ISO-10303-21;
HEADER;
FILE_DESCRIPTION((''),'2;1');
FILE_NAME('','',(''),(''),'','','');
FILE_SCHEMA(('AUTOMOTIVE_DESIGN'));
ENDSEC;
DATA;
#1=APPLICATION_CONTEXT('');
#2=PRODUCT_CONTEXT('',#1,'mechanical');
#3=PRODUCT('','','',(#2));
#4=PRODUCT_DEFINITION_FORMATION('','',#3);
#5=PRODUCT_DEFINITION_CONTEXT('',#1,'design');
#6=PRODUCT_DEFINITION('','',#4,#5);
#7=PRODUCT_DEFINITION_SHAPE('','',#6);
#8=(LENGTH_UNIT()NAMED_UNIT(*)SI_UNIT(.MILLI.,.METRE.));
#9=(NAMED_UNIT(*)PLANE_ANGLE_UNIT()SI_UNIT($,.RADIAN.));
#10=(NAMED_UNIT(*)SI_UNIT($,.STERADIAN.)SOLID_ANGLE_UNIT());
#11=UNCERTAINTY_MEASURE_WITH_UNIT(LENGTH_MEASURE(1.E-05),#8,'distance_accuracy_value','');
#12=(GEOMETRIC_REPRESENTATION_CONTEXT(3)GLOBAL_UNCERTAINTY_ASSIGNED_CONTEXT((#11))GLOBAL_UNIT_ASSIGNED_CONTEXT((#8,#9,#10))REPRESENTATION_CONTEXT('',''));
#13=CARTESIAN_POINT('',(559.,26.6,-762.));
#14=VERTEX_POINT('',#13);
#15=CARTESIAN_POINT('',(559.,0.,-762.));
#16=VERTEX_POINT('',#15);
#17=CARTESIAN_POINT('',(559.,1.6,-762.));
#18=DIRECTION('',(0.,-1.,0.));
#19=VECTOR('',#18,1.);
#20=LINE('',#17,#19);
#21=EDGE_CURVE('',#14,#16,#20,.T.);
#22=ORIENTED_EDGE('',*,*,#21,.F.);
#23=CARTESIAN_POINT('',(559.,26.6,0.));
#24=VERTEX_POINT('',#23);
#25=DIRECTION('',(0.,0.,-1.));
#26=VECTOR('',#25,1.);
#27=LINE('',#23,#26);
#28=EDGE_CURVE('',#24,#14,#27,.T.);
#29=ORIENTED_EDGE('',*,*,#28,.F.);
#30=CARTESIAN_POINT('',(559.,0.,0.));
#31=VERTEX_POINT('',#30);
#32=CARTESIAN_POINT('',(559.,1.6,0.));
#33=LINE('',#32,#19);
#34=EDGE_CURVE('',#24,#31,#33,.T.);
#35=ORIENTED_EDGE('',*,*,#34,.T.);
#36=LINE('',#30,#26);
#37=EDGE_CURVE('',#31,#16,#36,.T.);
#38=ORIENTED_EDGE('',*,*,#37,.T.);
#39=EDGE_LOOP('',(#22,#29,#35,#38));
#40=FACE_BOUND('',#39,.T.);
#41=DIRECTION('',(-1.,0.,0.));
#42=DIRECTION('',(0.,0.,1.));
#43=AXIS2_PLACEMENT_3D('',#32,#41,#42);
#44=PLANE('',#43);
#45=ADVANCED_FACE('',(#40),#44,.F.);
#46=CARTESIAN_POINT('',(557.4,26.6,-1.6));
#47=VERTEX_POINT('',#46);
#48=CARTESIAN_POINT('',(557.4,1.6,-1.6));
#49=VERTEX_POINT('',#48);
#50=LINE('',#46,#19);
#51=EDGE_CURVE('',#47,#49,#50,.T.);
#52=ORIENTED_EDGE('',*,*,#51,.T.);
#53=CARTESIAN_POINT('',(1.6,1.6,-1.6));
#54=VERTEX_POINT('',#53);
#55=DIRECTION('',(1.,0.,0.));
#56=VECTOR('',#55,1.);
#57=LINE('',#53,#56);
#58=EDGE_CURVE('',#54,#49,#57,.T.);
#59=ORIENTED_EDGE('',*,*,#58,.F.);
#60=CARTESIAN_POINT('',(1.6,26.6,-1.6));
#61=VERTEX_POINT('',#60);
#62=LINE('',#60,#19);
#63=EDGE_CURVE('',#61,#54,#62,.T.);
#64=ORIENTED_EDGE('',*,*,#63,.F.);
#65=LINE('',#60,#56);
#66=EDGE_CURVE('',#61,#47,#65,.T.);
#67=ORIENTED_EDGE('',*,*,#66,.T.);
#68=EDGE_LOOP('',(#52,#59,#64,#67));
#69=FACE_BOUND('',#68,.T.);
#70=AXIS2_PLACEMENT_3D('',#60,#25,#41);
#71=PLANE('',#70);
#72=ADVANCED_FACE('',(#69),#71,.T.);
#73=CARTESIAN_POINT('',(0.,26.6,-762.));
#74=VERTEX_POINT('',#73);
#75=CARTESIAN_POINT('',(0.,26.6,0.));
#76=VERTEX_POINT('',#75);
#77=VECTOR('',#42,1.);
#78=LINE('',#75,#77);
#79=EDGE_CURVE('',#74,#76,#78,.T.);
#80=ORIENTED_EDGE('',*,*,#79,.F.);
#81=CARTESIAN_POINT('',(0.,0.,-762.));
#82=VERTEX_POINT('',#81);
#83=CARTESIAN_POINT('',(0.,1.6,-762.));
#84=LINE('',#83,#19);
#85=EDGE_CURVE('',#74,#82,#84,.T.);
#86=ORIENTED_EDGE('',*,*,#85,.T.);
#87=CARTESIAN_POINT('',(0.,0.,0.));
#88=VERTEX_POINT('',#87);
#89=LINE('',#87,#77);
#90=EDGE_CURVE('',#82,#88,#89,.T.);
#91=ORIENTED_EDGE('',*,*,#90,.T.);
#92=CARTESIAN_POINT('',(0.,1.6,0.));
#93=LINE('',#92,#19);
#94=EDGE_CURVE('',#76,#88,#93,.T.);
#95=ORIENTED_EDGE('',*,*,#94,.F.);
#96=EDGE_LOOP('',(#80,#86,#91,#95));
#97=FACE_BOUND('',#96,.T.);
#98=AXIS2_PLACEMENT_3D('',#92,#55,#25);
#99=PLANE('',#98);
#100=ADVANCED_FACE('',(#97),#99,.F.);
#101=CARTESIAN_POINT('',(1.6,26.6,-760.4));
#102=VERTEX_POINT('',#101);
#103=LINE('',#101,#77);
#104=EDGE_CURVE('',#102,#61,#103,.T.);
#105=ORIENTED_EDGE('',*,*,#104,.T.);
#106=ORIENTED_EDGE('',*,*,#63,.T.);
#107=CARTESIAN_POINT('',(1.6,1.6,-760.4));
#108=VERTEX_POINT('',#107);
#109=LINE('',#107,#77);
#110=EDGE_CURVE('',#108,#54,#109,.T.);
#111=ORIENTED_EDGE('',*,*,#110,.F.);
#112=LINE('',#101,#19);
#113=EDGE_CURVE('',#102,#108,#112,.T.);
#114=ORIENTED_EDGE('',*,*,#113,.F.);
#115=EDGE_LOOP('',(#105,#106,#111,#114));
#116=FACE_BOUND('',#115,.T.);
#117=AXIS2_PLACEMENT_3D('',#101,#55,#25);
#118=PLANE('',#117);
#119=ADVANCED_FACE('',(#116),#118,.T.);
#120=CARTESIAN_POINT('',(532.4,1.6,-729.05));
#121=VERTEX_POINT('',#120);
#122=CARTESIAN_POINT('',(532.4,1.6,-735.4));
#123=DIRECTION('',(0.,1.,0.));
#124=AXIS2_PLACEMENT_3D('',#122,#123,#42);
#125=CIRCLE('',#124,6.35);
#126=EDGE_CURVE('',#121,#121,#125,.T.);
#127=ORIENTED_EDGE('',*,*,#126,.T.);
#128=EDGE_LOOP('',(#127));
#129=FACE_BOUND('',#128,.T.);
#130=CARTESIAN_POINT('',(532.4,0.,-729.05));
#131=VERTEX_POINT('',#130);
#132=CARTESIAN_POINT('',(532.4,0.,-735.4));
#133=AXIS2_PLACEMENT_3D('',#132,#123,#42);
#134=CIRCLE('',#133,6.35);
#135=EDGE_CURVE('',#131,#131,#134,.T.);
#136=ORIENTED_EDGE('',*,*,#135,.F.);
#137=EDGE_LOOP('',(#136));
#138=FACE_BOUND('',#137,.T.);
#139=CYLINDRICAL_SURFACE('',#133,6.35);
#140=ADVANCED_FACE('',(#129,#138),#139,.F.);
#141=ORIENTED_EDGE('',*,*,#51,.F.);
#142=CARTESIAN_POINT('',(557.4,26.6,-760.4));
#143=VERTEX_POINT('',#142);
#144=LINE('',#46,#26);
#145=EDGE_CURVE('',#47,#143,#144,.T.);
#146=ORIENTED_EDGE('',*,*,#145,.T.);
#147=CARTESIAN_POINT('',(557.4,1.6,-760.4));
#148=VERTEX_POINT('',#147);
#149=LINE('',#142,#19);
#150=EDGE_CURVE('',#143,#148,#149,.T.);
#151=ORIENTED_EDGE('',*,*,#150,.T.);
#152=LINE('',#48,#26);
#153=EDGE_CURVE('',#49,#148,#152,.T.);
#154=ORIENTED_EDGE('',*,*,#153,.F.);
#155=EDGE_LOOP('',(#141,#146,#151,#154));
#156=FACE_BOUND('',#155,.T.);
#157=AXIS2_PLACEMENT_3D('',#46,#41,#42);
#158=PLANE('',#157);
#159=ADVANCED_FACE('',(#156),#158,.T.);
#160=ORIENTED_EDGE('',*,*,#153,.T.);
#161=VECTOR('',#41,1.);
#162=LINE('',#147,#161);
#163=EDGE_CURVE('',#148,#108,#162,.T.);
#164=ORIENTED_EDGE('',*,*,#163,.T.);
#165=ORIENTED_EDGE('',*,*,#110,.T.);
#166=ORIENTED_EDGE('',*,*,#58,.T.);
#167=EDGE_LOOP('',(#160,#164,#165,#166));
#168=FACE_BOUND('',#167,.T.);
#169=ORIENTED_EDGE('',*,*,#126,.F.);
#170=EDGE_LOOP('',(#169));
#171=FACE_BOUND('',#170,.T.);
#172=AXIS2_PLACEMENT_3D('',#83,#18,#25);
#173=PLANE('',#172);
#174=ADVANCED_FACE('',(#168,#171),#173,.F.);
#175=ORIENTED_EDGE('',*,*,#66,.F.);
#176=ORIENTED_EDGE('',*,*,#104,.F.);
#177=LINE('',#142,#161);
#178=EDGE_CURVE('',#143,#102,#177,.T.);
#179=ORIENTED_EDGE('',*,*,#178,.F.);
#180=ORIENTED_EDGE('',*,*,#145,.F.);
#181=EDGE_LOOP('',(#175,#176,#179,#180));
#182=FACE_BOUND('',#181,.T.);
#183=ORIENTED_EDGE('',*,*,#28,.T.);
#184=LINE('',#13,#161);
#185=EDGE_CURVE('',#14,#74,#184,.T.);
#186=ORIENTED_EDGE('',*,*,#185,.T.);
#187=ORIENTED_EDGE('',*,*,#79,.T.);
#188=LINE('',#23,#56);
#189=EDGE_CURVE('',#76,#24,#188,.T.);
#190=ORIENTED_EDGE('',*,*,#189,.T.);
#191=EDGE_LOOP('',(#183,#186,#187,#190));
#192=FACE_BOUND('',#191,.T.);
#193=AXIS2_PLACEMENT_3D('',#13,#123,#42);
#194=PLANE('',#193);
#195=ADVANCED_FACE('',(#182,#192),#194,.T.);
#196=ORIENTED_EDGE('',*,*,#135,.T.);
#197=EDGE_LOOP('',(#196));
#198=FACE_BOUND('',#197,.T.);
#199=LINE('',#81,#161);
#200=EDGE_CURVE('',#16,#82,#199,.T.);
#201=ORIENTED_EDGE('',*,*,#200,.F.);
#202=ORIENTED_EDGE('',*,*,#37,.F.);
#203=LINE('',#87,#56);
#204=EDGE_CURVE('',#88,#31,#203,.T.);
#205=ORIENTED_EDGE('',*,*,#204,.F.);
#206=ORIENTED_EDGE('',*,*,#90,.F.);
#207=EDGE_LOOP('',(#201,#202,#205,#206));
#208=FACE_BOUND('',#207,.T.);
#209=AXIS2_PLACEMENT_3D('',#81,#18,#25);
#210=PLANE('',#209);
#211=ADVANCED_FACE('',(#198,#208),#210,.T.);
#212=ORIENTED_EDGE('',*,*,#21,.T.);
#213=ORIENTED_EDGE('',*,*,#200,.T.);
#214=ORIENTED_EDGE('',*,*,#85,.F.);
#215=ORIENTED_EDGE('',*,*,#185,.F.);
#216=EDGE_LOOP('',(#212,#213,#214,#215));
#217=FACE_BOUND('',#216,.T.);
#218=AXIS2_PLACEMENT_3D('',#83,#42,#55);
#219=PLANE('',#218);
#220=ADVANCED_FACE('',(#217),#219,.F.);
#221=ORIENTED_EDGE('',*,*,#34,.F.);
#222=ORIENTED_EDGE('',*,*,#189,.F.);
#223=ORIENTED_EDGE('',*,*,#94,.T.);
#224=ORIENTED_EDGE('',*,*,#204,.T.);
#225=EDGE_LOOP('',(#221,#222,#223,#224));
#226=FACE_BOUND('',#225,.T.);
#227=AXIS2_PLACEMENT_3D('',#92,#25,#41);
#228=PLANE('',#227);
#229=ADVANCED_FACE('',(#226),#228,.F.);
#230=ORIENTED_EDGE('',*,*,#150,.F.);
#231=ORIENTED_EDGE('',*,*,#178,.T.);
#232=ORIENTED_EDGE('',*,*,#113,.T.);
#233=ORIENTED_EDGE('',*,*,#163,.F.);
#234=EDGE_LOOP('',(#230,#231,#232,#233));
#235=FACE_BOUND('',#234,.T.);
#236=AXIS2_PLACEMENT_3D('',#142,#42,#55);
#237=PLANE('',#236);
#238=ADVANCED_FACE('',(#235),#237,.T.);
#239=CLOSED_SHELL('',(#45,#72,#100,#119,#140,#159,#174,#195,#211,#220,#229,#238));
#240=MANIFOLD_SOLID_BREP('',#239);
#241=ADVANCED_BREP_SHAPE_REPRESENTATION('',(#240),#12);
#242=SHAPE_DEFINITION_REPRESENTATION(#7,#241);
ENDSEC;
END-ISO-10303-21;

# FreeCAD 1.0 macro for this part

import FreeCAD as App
import Part
import Sketcher

doc = App.newDocument("Part")
body = doc.addObject("PartDesign::Body", "Body")

# Sketch on XZ plane
sketch1 = body.newObject("Sketcher::SketchObject", "Sketch")
sketch1.AttachmentSupport = (doc.getObject("XZ_Plane"), [""])
sketch1.MapMode = "FlatFace"
sketch1.addGeometry(Part.LineSegment(App.Vector(0, -762, 0), App.Vector(0, 0, 0)), False)
sketch1.addGeometry(Part.LineSegment(App.Vector(0, 0, 0), App.Vector(559, 0, 0)), False)
sketch1.addGeometry(Part.LineSegment(App.Vector(559, 0, 0), App.Vector(559, -762, 0)), False)
sketch1.addGeometry(Part.LineSegment(App.Vector(559, -762, 0), App.Vector(0, -762, 0)), False)
sketch1.addConstraint(Sketcher.Constraint("Coincident", 0, 2, 1, 1))
sketch1.addConstraint(Sketcher.Constraint("Coincident", 1, 2, 2, 1))
sketch1.addConstraint(Sketcher.Constraint("Coincident", 2, 2, 3, 1))
sketch1.addConstraint(Sketcher.Constraint("Coincident", 3, 2, 0, 1))
sketch1.addConstraint(Sketcher.Constraint("Vertical", 0))
sketch1.addConstraint(Sketcher.Constraint("Horizontal", 1))
sketch1.addConstraint(Sketcher.Constraint("Vertical", 2))
sketch1.addConstraint(Sketcher.Constraint("Horizontal", 3))
sketch1.addConstraint(Sketcher.Constraint("Coincident", 0, 2, -1, 1))
sketch1.addConstraint(Sketcher.Constraint("DistanceX", 1, 1, 1, 2, 559.0))
sketch1.addConstraint(Sketcher.Constraint("DistanceY", 0, 1, 0, 2, 762.0))
pad1 = body.newObject("PartDesign::Pad", "Pad")
pad1.Profile = sketch1
pad1.Length = 1.6
pad1.Reversed = True

# Sketch on XZ plane
sketch2 = body.newObject("Sketcher::SketchObject", "Sketch001")
sketch2.AttachmentSupport = (doc.getObject("XZ_Plane"), [""])
sketch2.MapMode = "FlatFace"
sketch2.AttachmentOffset = App.Placement(App.Vector(0, 0, -1.6), App.Rotation())
sketch2.addGeometry(Part.LineSegment(App.Vector(0, -762, 0), App.Vector(0, 0, 0)), False)
sketch2.addGeometry(Part.LineSegment(App.Vector(0, 0, 0), App.Vector(559, 0, 0)), False)
sketch2.addGeometry(Part.LineSegment(App.Vector(559, 0, 0), App.Vector(559, -762, 0)), False)
sketch2.addGeometry(Part.LineSegment(App.Vector(559, -762, 0), App.Vector(0, -762, 0)), False)
sketch2.addGeometry(Part.LineSegment(App.Vector(557, -2, 0), App.Vector(2, -2, 0)), False)
sketch2.addGeometry(Part.LineSegment(App.Vector(2, -2, 0), App.Vector(2, -760, 0)), False)
sketch2.addGeometry(Part.LineSegment(App.Vector(2, -760, 0), App.Vector(557, -760, 0)), False)
sketch2.addGeometry(Part.LineSegment(App.Vector(557, -760, 0), App.Vector(557, -2, 0)), False)
sketch2.addConstraint(Sketcher.Constraint("Coincident", 0, 2, 1, 1))
sketch2.addConstraint(Sketcher.Constraint("Coincident", 1, 2, 2, 1))
sketch2.addConstraint(Sketcher.Constraint("Coincident", 2, 2, 3, 1))
sketch2.addConstraint(Sketcher.Constraint("Coincident", 3, 2, 0, 1))
sketch2.addConstraint(Sketcher.Constraint("Coincident", 4, 2, 5, 1))
sketch2.addConstraint(Sketcher.Constraint("Coincident", 5, 2, 6, 1))
sketch2.addConstraint(Sketcher.Constraint("Coincident", 6, 2, 7, 1))
sketch2.addConstraint(Sketcher.Constraint("Coincident", 7, 2, 4, 1))
sketch2.addConstraint(Sketcher.Constraint("Vertical", 0))
sketch2.addConstraint(Sketcher.Constraint("Horizontal", 1))
sketch2.addConstraint(Sketcher.Constraint("Vertical", 2))
sketch2.addConstraint(Sketcher.Constraint("Horizontal", 3))
sketch2.addConstraint(Sketcher.Constraint("Horizontal", 4))
sketch2.addConstraint(Sketcher.Constraint("Vertical", 5))
sketch2.addConstraint(Sketcher.Constraint("Horizontal", 6))
sketch2.addConstraint(Sketcher.Constraint("Vertical", 7))
sketch2.addConstraint(Sketcher.Constraint("Coincident", 0, 2, -1, 1))
sketch2.addConstraint(Sketcher.Constraint("DistanceX", 1, 1, 1, 2, 559.0))
sketch2.addConstraint(Sketcher.Constraint("DistanceY", 0, 1, 0, 2, 762.0))
sketch2.addConstraint(Sketcher.Constraint("DistanceX", 4, 2, 4, 1, 555.8))
sketch2.addConstraint(Sketcher.Constraint("DistanceY", 5, 2, 5, 1, 758.8))
sketch2.addConstraint(Sketcher.Constraint("DistanceX", -1, 1, 4, 2, 1.6))
sketch2.addConstraint(Sketcher.Constraint("DistanceY", 4, 2, -1, 1, 1.6))
pad2 = body.newObject("PartDesign::Pad", "Pad001")
pad2.Profile = sketch2
pad2.Length = 25
pad2.Reversed = True

# Sketch on XZ plane
sketch3 = body.newObject("Sketcher::SketchObject", "Sketch002")
sketch3.AttachmentSupport = (doc.getObject("XZ_Plane"), [""])
sketch3.MapMode = "FlatFace"
sketch3.AttachmentOffset = App.Placement(App.Vector(0, 0, -1.6), App.Rotation())
sketch3.addGeometry(Part.Circle(App.Vector(532, -735, 0), App.Vector(0, 0, 1), 6), False)
sketch3.addConstraint(Sketcher.Constraint("Diameter", 0, 12.7))
sketch3.addConstraint(Sketcher.Constraint("DistanceX", -1, 1, 0, 3, 532.4))
sketch3.addConstraint(Sketcher.Constraint("DistanceY", 0, 3, -1, 1, 735.4))
pocket1 = body.newObject("PartDesign::Pocket", "Pocket")
pocket1.Profile = sketch3
pocket1.Type = "ThroughAll"
pocket1.Reversed = True

doc.recompute()
